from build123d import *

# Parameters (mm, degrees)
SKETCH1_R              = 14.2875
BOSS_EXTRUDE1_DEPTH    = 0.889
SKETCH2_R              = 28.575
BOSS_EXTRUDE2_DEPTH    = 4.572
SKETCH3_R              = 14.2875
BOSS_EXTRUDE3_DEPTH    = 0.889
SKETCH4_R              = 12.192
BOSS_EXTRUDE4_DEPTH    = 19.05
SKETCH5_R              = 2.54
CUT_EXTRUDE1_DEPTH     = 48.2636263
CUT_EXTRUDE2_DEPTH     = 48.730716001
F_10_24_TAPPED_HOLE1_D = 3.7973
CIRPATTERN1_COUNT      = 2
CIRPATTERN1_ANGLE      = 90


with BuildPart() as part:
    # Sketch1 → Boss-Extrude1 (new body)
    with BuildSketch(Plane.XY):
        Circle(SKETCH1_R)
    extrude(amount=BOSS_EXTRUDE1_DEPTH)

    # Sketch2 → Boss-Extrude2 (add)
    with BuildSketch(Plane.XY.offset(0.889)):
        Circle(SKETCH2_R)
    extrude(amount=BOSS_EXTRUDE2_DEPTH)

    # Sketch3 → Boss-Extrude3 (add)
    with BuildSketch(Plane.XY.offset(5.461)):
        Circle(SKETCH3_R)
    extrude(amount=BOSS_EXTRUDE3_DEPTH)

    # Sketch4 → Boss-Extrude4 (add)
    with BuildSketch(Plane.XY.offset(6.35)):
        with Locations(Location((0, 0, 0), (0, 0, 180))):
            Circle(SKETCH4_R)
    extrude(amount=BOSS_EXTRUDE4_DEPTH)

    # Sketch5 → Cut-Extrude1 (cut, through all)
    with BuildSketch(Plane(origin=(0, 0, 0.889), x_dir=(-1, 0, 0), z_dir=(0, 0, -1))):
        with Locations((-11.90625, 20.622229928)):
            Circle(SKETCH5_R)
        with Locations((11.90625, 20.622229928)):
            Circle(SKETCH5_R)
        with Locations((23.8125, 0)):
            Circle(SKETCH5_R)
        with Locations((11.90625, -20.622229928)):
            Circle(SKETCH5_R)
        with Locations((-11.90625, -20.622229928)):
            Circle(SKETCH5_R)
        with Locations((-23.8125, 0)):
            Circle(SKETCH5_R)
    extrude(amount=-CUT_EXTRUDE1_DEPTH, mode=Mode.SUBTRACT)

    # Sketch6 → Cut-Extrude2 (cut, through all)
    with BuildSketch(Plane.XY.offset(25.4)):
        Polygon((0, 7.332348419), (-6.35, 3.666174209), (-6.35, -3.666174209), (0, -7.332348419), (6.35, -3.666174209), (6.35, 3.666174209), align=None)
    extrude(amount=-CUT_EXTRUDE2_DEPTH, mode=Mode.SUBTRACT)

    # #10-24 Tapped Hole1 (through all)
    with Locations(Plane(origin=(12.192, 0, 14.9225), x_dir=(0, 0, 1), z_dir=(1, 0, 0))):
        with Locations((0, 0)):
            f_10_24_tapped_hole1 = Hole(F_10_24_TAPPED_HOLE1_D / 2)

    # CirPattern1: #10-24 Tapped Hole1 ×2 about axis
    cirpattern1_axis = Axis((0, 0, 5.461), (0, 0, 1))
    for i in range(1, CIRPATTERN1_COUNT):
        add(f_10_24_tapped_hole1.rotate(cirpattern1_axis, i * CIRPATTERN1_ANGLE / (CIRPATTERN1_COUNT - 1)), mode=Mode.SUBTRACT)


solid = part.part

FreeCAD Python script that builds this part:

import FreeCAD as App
import Part
import Sketcher

V = App.Vector
Q = App.Units.Quantity


def add_polygon(sketch, points):
    """Adds a closed chain of lines whose ends are joined by coincident constraints."""
    first, n = sketch.GeometryCount, len(points)
    for a, b in zip(points, points[1:] + points[:1]):
        sketch.addGeometry(Part.LineSegment(App.Vector(*a, 0), App.Vector(*b, 0)), False)
    for i in range(n):
        sketch.addConstraint(Sketcher.Constraint("Coincident", first + i, 2, first + (i + 1) % n, 1))

doc = App.newDocument("Part")
body = doc.addObject("PartDesign::Body", "Body")

sketch1 = body.newObject("Sketcher::SketchObject", "Sketch")
sketch1.AttachmentSupport = (doc.getObject("XY_Plane"), [""])
sketch1.MapMode = "FlatFace"
sketch1.addGeometry(Part.Circle(V(0, 0, 0), V(0, 0, 1), 14), False)
sketch1.addConstraint(Sketcher.Constraint("Coincident", 0, 3, -1, 1))
sketch1.addConstraint(Sketcher.Constraint("Diameter", 0, Q("1.125 in")))
pad1 = body.newObject("PartDesign::Pad", "Pad")
pad1.Profile = sketch1
pad1.Length = Q("0.035 in")

sketch2 = body.newObject("Sketcher::SketchObject", "Sketch001")
sketch2.AttachmentSupport = (doc.getObject("XY_Plane"), [""])
sketch2.MapMode = "FlatFace"
sketch2.AttachmentOffset = App.Placement(V(0, 0, 0.035 * 25.4), App.Rotation())
sketch2.addGeometry(Part.Circle(V(0, 0, 0), V(0, 0, 1), 29), False)
sketch2.addConstraint(Sketcher.Constraint("Coincident", 0, 3, -1, 1))
sketch2.addConstraint(Sketcher.Constraint("Diameter", 0, Q("2.25 in")))
pad2 = body.newObject("PartDesign::Pad", "Pad001")
pad2.Profile = sketch2
pad2.Length = Q("0.18 in")

sketch3 = body.newObject("Sketcher::SketchObject", "Sketch002")
sketch3.AttachmentSupport = (doc.getObject("XY_Plane"), [""])
sketch3.MapMode = "FlatFace"
sketch3.AttachmentOffset = App.Placement(V(0, 0, 0.215 * 25.4), App.Rotation())
sketch3.addGeometry(Part.Circle(V(0, 0, 0), V(0, 0, 1), 14), False)
sketch3.addConstraint(Sketcher.Constraint("Coincident", 0, 3, -1, 1))
sketch3.addConstraint(Sketcher.Constraint("Diameter", 0, Q("1.125 in")))
pad3 = body.newObject("PartDesign::Pad", "Pad002")
pad3.Profile = sketch3
pad3.Length = Q("0.035 in")

sketch4 = body.newObject("Sketcher::SketchObject", "Sketch003")
sketch4.AttachmentSupport = (doc.getObject("XY_Plane"), [""])
sketch4.MapMode = "FlatFace"
sketch4.AttachmentOffset = App.Placement(V(0, 0, 0.25 * 25.4), App.Rotation())
sketch4.addGeometry(Part.Circle(V(0, 0, 0), V(0, 0, 1), 12), False)
sketch4.addConstraint(Sketcher.Constraint("Coincident", 0, 3, -1, 1))
sketch4.addConstraint(Sketcher.Constraint("Diameter", 0, Q("0.96 in")))
pad4 = body.newObject("PartDesign::Pad", "Pad003")
pad4.Profile = sketch4
pad4.Length = Q("0.75 in")

sketch5 = body.newObject("Sketcher::SketchObject", "Sketch004")
sketch5.AttachmentSupport = (doc.getObject("XY_Plane"), [""])
sketch5.MapMode = "FlatFace"
sketch5.AttachmentOffset = App.Placement(V(0, 0, 0.035 * 25.4), App.Rotation())
sketch5.addGeometry(Part.Circle(V(11.9, 20.6, 0), V(0, 0, 1), 2.5), False)
sketch5.addGeometry(Part.Circle(V(-11.9, 20.6, 0), V(0, 0, 1), 2.5), False)
sketch5.addGeometry(Part.Circle(V(-23.8, 0, 0), V(0, 0, 1), 2.5), False)
sketch5.addGeometry(Part.Circle(V(-11.9, -20.6, 0), V(0, 0, 1), 2.5), False)
sketch5.addGeometry(Part.Circle(V(11.9, -20.6, 0), V(0, 0, 1), 2.5), False)
sketch5.addGeometry(Part.Circle(V(23.8, 0, 0), V(0, 0, 1), 2.5), False)
sketch5.addConstraint(Sketcher.Constraint("Equal", 0, 1))
sketch5.addConstraint(Sketcher.Constraint("Equal", 1, 2))
sketch5.addConstraint(Sketcher.Constraint("Equal", 2, 3))
sketch5.addConstraint(Sketcher.Constraint("Equal", 3, 4))
sketch5.addConstraint(Sketcher.Constraint("Equal", 4, 5))
sketch5.addConstraint(Sketcher.Constraint("Symmetric", 0, 3, 3, 3, -1, 1))
sketch5.addConstraint(Sketcher.Constraint("Symmetric", 1, 3, 4, 3, -1, 1))
sketch5.addConstraint(Sketcher.Constraint("Symmetric", 2, 3, 5, 3, -1, 1))
sketch5.addConstraint(Sketcher.Constraint("Symmetric", 0, 3, 1, 3, -2))
sketch5.addConstraint(Sketcher.Constraint("PointOnObject", 2, 3, -1))
sketch5.addConstraint(Sketcher.Constraint("Diameter", 0, Q("0.2 in")))
sketch5.addConstraint(Sketcher.Constraint("DistanceX", -1, 1, 0, 3, Q("0.46875 in")))
sketch5.addConstraint(Sketcher.Constraint("DistanceX", 2, 3, -1, 1, Q("0.9375 in")))
sketch5.addConstraint(Sketcher.Constraint("DistanceY", -1, 1, 0, 3, 20.62223))
pocket1 = body.newObject("PartDesign::Pocket", "Pocket")
pocket1.Profile = sketch5
pocket1.Type = "ThroughAll"
pocket1.Reversed = True

sketch6 = body.newObject("Sketcher::SketchObject", "Sketch005")
sketch6.AttachmentSupport = (doc.getObject("XY_Plane"), [""])
sketch6.MapMode = "FlatFace"
sketch6.AttachmentOffset = App.Placement(V(0, 0, 1 * 25.4), App.Rotation())
add_polygon(sketch6, [(0, 7), (-6, 4), (-6, -4), (0, -7), (6, -4), (6, 4)])
sketch6.addConstraint(Sketcher.Constraint("Vertical", 1))
sketch6.addConstraint(Sketcher.Constraint("Vertical", 4))
sketch6.addConstraint(Sketcher.Constraint("Symmetric", 0, 2, 3, 2, -1, 1))
sketch6.addConstraint(Sketcher.Constraint("Symmetric", 2, 2, 5, 2, -1, 1))
sketch6.addConstraint(Sketcher.Constraint("PointOnObject", 2, 2, -2))
sketch6.addConstraint(Sketcher.Constraint("Parallel", 2, 5))
sketch6.addConstraint(Sketcher.Constraint("Horizontal", 1, 2, 3, 2))
sketch6.addConstraint(Sketcher.Constraint("Angle", 0, Q("-150 deg")))
sketch6.addConstraint(Sketcher.Constraint("DistanceX", 1, 2, 3, 2, Q("0.5 in")))
sketch6.addConstraint(Sketcher.Constraint("DistanceY", 1, 2, 1, 1, 7.332348))
pocket2 = body.newObject("PartDesign::Pocket", "Pocket001")
pocket2.Profile = sketch6
pocket2.Type = "ThroughAll"

sketch7 = body.newObject("Sketcher::SketchObject", "Sketch006")
sketch7.AttachmentSupport = (doc.getObject("YZ_Plane"), [""])
sketch7.MapMode = "FlatFace"
sketch7.AttachmentOffset = App.Placement(V(0, 0, 0.48 * 25.4), App.Rotation())
sketch7.addGeometry(Part.Circle(V(0, 14.9, 0), V(0, 0, 1), 1.9), False)
sketch7.addConstraint(Sketcher.Constraint("PointOnObject", 0, 3, -2))
sketch7.addConstraint(Sketcher.Constraint("Diameter", 0, Q("0.1495 in")))
sketch7.addConstraint(Sketcher.Constraint("DistanceY", -1, 1, 0, 3, Q("0.5875 in")))
doc.recompute()
hole = body.newObject("PartDesign::Hole", "Hole")
hole.Profile = sketch7
hole.ThreadType = "None"
hole.Diameter = Q("0.1495 in")
hole.DepthType = "ThroughAll"
doc.recompute()

polarpattern = body.newObject("PartDesign::PolarPattern", "PolarPattern")
polarpattern.Originals = [hole]
polarpattern.Axis = (doc.getObject("Z_Axis"), [""])
polarpattern.Angle = 90
polarpattern.Occurrences = 2
body.Tip = polarpattern

doc.recompute()
